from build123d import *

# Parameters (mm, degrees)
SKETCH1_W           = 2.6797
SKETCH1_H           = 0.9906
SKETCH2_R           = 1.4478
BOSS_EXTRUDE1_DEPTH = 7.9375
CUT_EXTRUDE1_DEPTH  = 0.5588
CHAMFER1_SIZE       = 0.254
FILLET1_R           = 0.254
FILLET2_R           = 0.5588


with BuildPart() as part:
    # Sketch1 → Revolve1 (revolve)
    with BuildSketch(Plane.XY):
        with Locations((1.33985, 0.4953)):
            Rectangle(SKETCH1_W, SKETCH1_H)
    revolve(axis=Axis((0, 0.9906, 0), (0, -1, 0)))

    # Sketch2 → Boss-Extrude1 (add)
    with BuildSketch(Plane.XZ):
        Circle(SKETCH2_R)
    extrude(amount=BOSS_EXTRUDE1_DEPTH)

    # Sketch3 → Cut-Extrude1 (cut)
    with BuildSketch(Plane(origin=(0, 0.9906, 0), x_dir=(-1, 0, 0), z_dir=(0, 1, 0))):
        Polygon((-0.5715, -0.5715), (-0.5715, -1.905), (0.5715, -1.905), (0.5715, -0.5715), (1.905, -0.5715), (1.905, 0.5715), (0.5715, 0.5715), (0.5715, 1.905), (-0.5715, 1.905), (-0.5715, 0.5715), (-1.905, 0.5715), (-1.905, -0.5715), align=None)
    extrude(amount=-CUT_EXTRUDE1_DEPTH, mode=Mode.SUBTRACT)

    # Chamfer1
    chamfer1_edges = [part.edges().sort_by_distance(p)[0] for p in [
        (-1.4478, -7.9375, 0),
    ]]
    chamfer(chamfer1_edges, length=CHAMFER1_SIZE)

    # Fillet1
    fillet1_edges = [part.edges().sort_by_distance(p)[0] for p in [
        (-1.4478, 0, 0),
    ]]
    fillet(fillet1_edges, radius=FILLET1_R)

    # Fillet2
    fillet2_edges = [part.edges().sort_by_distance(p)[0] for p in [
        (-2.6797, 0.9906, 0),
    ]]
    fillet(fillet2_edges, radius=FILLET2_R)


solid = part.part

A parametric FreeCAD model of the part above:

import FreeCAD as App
import Part
import Sketcher

V = App.Vector
Q = App.Units.Quantity


def edges_at(feature, points):
    """Names of the edges that pass closest to the given points."""
    edges = feature.Shape.Edges
    near = lambda p: min(range(len(edges)), key=lambda i: edges[i].distToShape(Part.Vertex(*p))[0])
    return sorted({f"Edge{near(p) + 1}" for p in points})

doc = App.newDocument("Part")
body = doc.addObject("PartDesign::Body", "Body")

sketch1 = body.newObject("Sketcher::SketchObject", "Sketch")
sketch1.AttachmentSupport = (doc.getObject("XY_Plane"), [""])
sketch1.MapMode = "FlatFace"
sketch1.addGeometry(Part.LineSegment(V(0, 0.9906, 0), V(0, 0, 0)), False)
sketch1.addGeometry(Part.LineSegment(V(0, 0, 0), V(2.6797, 0, 0)), False)
sketch1.addGeometry(Part.LineSegment(V(2.6797, 0, 0), V(2.6797, 0.9906, 0)), False)
sketch1.addGeometry(Part.LineSegment(V(2.6797, 0.9906, 0), V(0, 0.9906, 0)), False)
sketch1.addConstraint(Sketcher.Constraint("Coincident", 0, 2, 1, 1))
sketch1.addConstraint(Sketcher.Constraint("Coincident", 1, 2, 2, 1))
sketch1.addConstraint(Sketcher.Constraint("Coincident", 2, 2, 3, 1))
sketch1.addConstraint(Sketcher.Constraint("Coincident", 3, 2, 0, 1))
sketch1.addConstraint(Sketcher.Constraint("Vertical", 0))
sketch1.addConstraint(Sketcher.Constraint("Horizontal", 1))
sketch1.addConstraint(Sketcher.Constraint("Vertical", 2))
sketch1.addConstraint(Sketcher.Constraint("Horizontal", 3))
sketch1.addConstraint(Sketcher.Constraint("Coincident", 0, 2, -1, 1))
sketch1.addConstraint(Sketcher.Constraint("DistanceY", 0, 2, 0, 1, Q("0.039 in")))
sketch1.addConstraint(Sketcher.Constraint("DistanceX", 1, 1, 1, 2, Q("0.1055 in")))
revolution = body.newObject("PartDesign::Revolution", "Revolution")
revolution.Profile = sketch1
revolution.ReferenceAxis = (sketch1, ["V_Axis"])
revolution.Angle = 360

sketch2 = body.newObject("Sketcher::SketchObject", "Sketch001")
sketch2.AttachmentSupport = (doc.getObject("XZ_Plane"), [""])
sketch2.MapMode = "FlatFace"
sketch2.addGeometry(Part.Circle(V(0, 0, 0), V(0, 0, 1), 1.4478), False)
sketch2.addConstraint(Sketcher.Constraint("Coincident", 0, 3, -1, 1))
sketch2.addConstraint(Sketcher.Constraint("Diameter", 0, Q("0.114 in")))
pad1 = body.newObject("PartDesign::Pad", "Pad")
pad1.Profile = sketch2
pad1.Length = Q("0.3125 in")

sketch3 = body.newObject("Sketcher::SketchObject", "Sketch002")
sketch3.AttachmentSupport = (doc.getObject("XZ_Plane"), [""])
sketch3.MapMode = "FlatFace"
sketch3.AttachmentOffset = App.Placement(V(0, 0, -0.039 * 25.4), App.Rotation())
sketch3.addGeometry(Part.LineSegment(V(0.5715, -0.5715, 0), V(0.5715, -1.905, 0)), False)
sketch3.addGeometry(Part.LineSegment(V(0.5715, -1.905, 0), V(-0.5715, -1.905, 0)), False)
sketch3.addGeometry(Part.LineSegment(V(-0.5715, -1.905, 0), V(-0.5715, -0.5715, 0)), False)
sketch3.addGeometry(Part.LineSegment(V(-0.5715, -0.5715, 0), V(-1.905, -0.5715, 0)), False)
sketch3.addGeometry(Part.LineSegment(V(-1.905, -0.5715, 0), V(-1.905, 0.5715, 0)), False)
sketch3.addGeometry(Part.LineSegment(V(-1.905, 0.5715, 0), V(-0.5715, 0.5715, 0)), False)
sketch3.addGeometry(Part.LineSegment(V(-0.5715, 0.5715, 0), V(-0.5715, 1.905, 0)), False)
sketch3.addGeometry(Part.LineSegment(V(-0.5715, 1.905, 0), V(0.5715, 1.905, 0)), False)
sketch3.addGeometry(Part.LineSegment(V(0.5715, 1.905, 0), V(0.5715, 0.5715, 0)), False)
sketch3.addGeometry(Part.LineSegment(V(0.5715, 0.5715, 0), V(1.905, 0.5715, 0)), False)
sketch3.addGeometry(Part.LineSegment(V(1.905, 0.5715, 0), V(1.905, -0.5715, 0)), False)
sketch3.addGeometry(Part.LineSegment(V(1.905, -0.5715, 0), V(0.5715, -0.5715, 0)), False)
sketch3.addConstraint(Sketcher.Constraint("Coincident", 0, 2, 1, 1))
sketch3.addConstraint(Sketcher.Constraint("Coincident", 1, 2, 2, 1))
sketch3.addConstraint(Sketcher.Constraint("Coincident", 2, 2, 3, 1))
sketch3.addConstraint(Sketcher.Constraint("Coincident", 3, 2, 4, 1))
sketch3.addConstraint(Sketcher.Constraint("Coincident", 4, 2, 5, 1))
sketch3.addConstraint(Sketcher.Constraint("Coincident", 5, 2, 6, 1))
sketch3.addConstraint(Sketcher.Constraint("Coincident", 6, 2, 7, 1))
sketch3.addConstraint(Sketcher.Constraint("Coincident", 7, 2, 8, 1))
sketch3.addConstraint(Sketcher.Constraint("Coincident", 8, 2, 9, 1))
sketch3.addConstraint(Sketcher.Constraint("Coincident", 9, 2, 10, 1))
sketch3.addConstraint(Sketcher.Constraint("Coincident", 10, 2, 11, 1))
sketch3.addConstraint(Sketcher.Constraint("Coincident", 11, 2, 0, 1))
sketch3.addConstraint(Sketcher.Constraint("Vertical", 0))
sketch3.addConstraint(Sketcher.Constraint("Horizontal", 1))
sketch3.addConstraint(Sketcher.Constraint("Vertical", 2))
sketch3.addConstraint(Sketcher.Constraint("Horizontal", 3))
sketch3.addConstraint(Sketcher.Constraint("Vertical", 4))
sketch3.addConstraint(Sketcher.Constraint("Horizontal", 5))
sketch3.addConstraint(Sketcher.Constraint("Vertical", 6))
sketch3.addConstraint(Sketcher.Constraint("Horizontal", 7))
sketch3.addConstraint(Sketcher.Constraint("Vertical", 8))
sketch3.addConstraint(Sketcher.Constraint("Horizontal", 9))
sketch3.addConstraint(Sketcher.Constraint("Vertical", 10))
sketch3.addConstraint(Sketcher.Constraint("Horizontal", 11))
sketch3.addConstraint(Sketcher.Constraint("Symmetric", 0, 2, 6, 2, -1, 1))
sketch3.addConstraint(Sketcher.Constraint("Symmetric", 2, 2, 8, 2, -1, 1))
sketch3.addConstraint(Sketcher.Constraint("Symmetric", 4, 2, 10, 2, -1, 1))
sketch3.addConstraint(Sketcher.Constraint("Symmetric", 5, 2, 8, 2, -2))
sketch3.addConstraint(Sketcher.Constraint("Equal", 11, 0))
sketch3.addConstraint(Sketcher.Constraint("Equal", 7, 4))
sketch3.addConstraint(Sketcher.Constraint("DistanceX", 1, 2, 1, 1, Q("0.045 in")))
sketch3.addConstraint(Sketcher.Constraint("DistanceY", 1, 2, 6, 2, Q("0.15 in")))
pocket1 = body.newObject("PartDesign::Pocket", "Pocket")
pocket1.Profile = sketch3
pocket1.Length = Q("0.022 in")
pocket1.Reversed = True
doc.recompute()

chamfer = body.newObject("PartDesign::Chamfer", "Chamfer")
chamfer.Base = (pocket1, edges_at(pocket1, [(-1.448, -7.938, 0)]))
chamfer.Size = Q("0.01 in")
doc.recompute()

fillet = body.newObject("PartDesign::Fillet", "Fillet")
fillet.Base = (chamfer, edges_at(chamfer, [(-1.448, 0, 0)]))
fillet.Radius = Q("0.01 in")
doc.recompute()

fillet2 = body.newObject("PartDesign::Fillet", "Fillet001")
fillet2.Base = (fillet, edges_at(fillet, [(-2.68, 0.991, 0)]))
fillet2.Radius = Q("0.022 in")

doc.recompute()
